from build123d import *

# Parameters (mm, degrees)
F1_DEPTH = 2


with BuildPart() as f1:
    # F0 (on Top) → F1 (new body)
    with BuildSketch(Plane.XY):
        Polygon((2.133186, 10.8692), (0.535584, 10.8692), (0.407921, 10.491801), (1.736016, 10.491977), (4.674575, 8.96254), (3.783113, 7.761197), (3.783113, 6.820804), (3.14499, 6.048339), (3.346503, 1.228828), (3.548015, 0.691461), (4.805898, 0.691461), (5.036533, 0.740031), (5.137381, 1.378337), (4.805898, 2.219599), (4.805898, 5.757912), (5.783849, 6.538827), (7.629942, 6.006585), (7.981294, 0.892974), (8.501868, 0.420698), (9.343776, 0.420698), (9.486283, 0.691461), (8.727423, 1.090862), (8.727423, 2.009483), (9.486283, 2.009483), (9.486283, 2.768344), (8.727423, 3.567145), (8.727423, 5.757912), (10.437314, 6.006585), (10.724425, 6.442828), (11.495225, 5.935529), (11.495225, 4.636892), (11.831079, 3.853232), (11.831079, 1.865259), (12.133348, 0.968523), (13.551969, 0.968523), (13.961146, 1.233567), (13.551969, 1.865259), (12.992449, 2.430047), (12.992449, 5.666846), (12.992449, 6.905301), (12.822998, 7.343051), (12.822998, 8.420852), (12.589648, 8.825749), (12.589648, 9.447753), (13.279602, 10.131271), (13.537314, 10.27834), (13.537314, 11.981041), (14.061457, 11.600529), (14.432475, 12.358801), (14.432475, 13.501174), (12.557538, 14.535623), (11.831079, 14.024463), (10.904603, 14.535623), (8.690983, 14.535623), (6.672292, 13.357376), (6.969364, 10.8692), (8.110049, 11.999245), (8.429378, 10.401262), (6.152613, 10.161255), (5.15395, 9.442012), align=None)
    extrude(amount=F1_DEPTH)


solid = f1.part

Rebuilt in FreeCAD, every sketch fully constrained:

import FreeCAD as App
import Part
import Sketcher

V = App.Vector
Q = App.Units.Quantity


def add_polygon(sketch, points):
    """Adds a closed chain of lines whose ends are joined by coincident constraints."""
    first, n = sketch.GeometryCount, len(points)
    for a, b in zip(points, points[1:] + points[:1]):
        sketch.addGeometry(Part.LineSegment(App.Vector(*a, 0), App.Vector(*b, 0)), False)
    for i in range(n):
        sketch.addConstraint(Sketcher.Constraint("Coincident", first + i, 2, first + (i + 1) % n, 1))

doc = App.newDocument("Part")
body = doc.addObject("PartDesign::Body", "Body")

# Sketch on XY plane
sketch1 = doc.addObject("Sketcher::SketchObject", "Sketch")
body.addObject(sketch1)
sketch1.AttachmentSupport = (doc.XY_Plane, [""])
sketch1.MapMode = "FlatFace"
add_polygon(sketch1, [(2.133186, 10.8692), (0.535584, 10.8692), (0.407921, 10.491801), (1.736016, 10.491977), (4.674575, 8.96254), (3.783113, 7.761197), (3.783113, 6.820804), (3.14499, 6.048339), (3.346503, 1.228828), (3.548015, 0.691461), (4.805898, 0.691461), (5.036533, 0.740031), (5.137381, 1.378337), (4.805898, 2.219599), (4.805898, 5.757912), (5.783849, 6.538827), (7.629942, 6.006585), (7.981294, 0.892974), (8.501868, 0.420698), (9.343776, 0.420698), (9.486283, 0.691461), (8.727423, 1.090862), (8.727423, 2.009483), (9.486283, 2.009483), (9.486283, 2.768344), (8.727423, 3.567145), (8.727423, 5.757912), (10.437314, 6.006585), (10.724425, 6.442828), (11.495225, 5.935529), (11.495225, 4.636892), (11.831079, 3.853232), (11.831079, 1.865259), (12.133348, 0.968523), (13.551969, 0.968523), (13.961146, 1.233567), (13.551969, 1.865259), (12.992449, 2.430047), (12.992449, 6.905301), (12.822998, 7.343051), (12.822998, 8.420852), (12.589648, 8.825749), (12.589648, 9.447753), (13.279602, 10.131271), (13.537314, 10.27834), (13.537314, 11.981041), (14.061457, 11.600529), (14.432475, 12.358801), (14.432475, 13.501174), (12.557538, 14.535623), (11.831079, 14.024463), (10.904603, 14.535623), (8.690983, 14.535623), (6.672292, 13.357376), (6.969364, 10.8692), (8.110049, 11.999245), (8.429378, 10.401262), (6.152613, 10.161255), (5.15395, 9.442012)])  # lines 0-58
sketch1.addConstraint([
    Sketcher.Constraint("Horizontal", 0),
    Sketcher.Constraint("Vertical", 5),
    Sketcher.Constraint("Horizontal", 9),
    Sketcher.Constraint("Vertical", 13),
    Sketcher.Constraint("Horizontal", 18),
    Sketcher.Constraint("Vertical", 21),
    Sketcher.Constraint("Horizontal", 22),
    Sketcher.Constraint("Vertical", 23),
    Sketcher.Constraint("Vertical", 25),
    Sketcher.Constraint("Vertical", 29),
    Sketcher.Constraint("Vertical", 31),
    Sketcher.Constraint("Horizontal", 33),
    Sketcher.Constraint("Vertical", 37),
    Sketcher.Constraint("Vertical", 39),
    Sketcher.Constraint("Vertical", 41),
    Sketcher.Constraint("Vertical", 44),
    Sketcher.Constraint("Vertical", 47),
    Sketcher.Constraint("Horizontal", 51),
    Sketcher.Constraint("Perpendicular", 19, 20),
    Sketcher.Constraint("Perpendicular", 27, 28),
    Sketcher.Constraint("Perpendicular", 34, 35),
    Sketcher.Constraint("Perpendicular", 36, 42),
    Sketcher.Constraint("Parallel", 48, 50),
    Sketcher.Constraint("Parallel", 42, 54),
    Sketcher.Constraint("Horizontal", 9, 2, 19, 2),
    Sketcher.Constraint("Horizontal", 13, 2, 25, 2),
    Sketcher.Constraint("Horizontal", 15, 2, 26, 2),
    Sketcher.Constraint("Horizontal", 31, 2, 35, 2),
    Sketcher.Constraint("Horizontal", 48, 2, 50, 2),
    Sketcher.Constraint("Horizontal", 0, 2, 53, 2),
    Sketcher.Constraint("Vertical", 9, 2, 12, 2),
    Sketcher.Constraint("Vertical", 19, 2, 22, 2),
    Sketcher.Constraint("Vertical", 21, 2, 24, 2),
    Sketcher.Constraint("Vertical", 33, 2, 35, 2),
    Sketcher.Constraint("Vertical", 31, 2, 49, 2),
    Sketcher.Constraint("Equal", 22, 23),
    Sketcher.Constraint("DistanceX", 0, 2, 0, 1, Q("1.597602 mm")),
    Sketcher.Constraint("DistanceY", 39, 1, 39, 2, Q("1.077801 mm")),
    Sketcher.Constraint("DistanceY", 44, 1, 44, 2, Q("1.702701 mm")),
    Sketcher.Constraint("Distance", 45, Q("0.6477 mm")),
    Sketcher.Constraint("DistanceX", 18, 1, 18, 2, Q("0.841908 mm")),
    Sketcher.Constraint("DistanceX", 22, 1, 22, 2, Q("0.75886 mm")),
    Sketcher.Constraint("DistanceX", 33, 1, 33, 2, Q("1.418621 mm")),
    Sketcher.Constraint("DistanceX", 51, 2, 51, 1, Q("2.21362 mm")),
    Sketcher.Constraint("DistanceY", 21, 1, 21, 2, Q("0.918621 mm")),
    Sketcher.Constraint("DistanceY", -1, 1, 0, 2, Q("10.8692 mm")),
    Sketcher.Constraint("DistanceY", -1, 1, 1, 2, Q("10.491801 mm")),
    Sketcher.Constraint("DistanceY", -1, 1, 12, 2, Q("2.219599 mm")),
    Sketcher.Constraint("DistanceY", -1, 1, 37, 2, Q("6.905301 mm")),
    Sketcher.Constraint("DistanceY", -1, 1, 46, 2, Q("12.358801 mm")),
    Sketcher.Constraint("DistanceY", 6, 2, 3, 2, Q("2.914201 mm")),
    Sketcher.Constraint("DistanceX", 8, 2, 5, 2, Q("0.235098 mm")),
    Sketcher.Constraint("DistanceY", 17, 2, 12, 2, Q("1.798901 mm")),
    Sketcher.Constraint("DistanceX", 11, 2, 19, 2, Q("4.348902 mm")),
    Sketcher.Constraint("DistanceY", 19, 2, 20, 2, Q("0.399401 mm")),
    Sketcher.Constraint("DistanceY", 23, 2, 24, 2, Q("0.798801 mm")),
    Sketcher.Constraint("DistanceX", 27, 2, 28, 2, Q("0.7708 mm")),
    Sketcher.Constraint("DistanceY", 28, 2, 27, 2, Q("0.507299 mm")),
    Sketcher.Constraint("DistanceX", 25, 2, 28, 2, Q("2.767802 mm")),
    Sketcher.Constraint("DistanceY", 19, 2, 31, 2, Q("1.173798 mm")),
    Sketcher.Constraint("DistanceX", 32, 2, 36, 2, Q("0.859101 mm")),
    Sketcher.Constraint("DistanceY", 38, 2, 40, 2, Q("1.482698 mm")),
    Sketcher.Constraint("DistanceX", 40, 2, 37, 2, Q("0.402801 mm")),
    Sketcher.Constraint("DistanceY", 39, 2, 41, 2, Q("1.026901 mm")),
    Sketcher.Constraint("DistanceY", 2, 2, 52, 2, Q("2.865399 mm")),
    Sketcher.Constraint("Distance", 3, Q("3.312749 mm")),
    Sketcher.Constraint("Distance", 4, Q("1.495971 mm")),
    Sketcher.Constraint("Distance", 6, Q("1.00195 mm")),
    Sketcher.Constraint("Distance", 7, Q("4.823722 mm")),
    Sketcher.Constraint("Distance", 17, Q("0.702881 mm")),
    Sketcher.Constraint("Distance", 26, Q("1.727879 mm")),
    Sketcher.Constraint("Distance", 32, Q("0.94631 mm")),
    Sketcher.Constraint("Distance", 34, Q("0.487518 mm")),
    Sketcher.Constraint("Distance", 48, Q("2.141372 mm")),
    Sketcher.Constraint("Distance", 50, Q("1.058132 mm")),
    Sketcher.Constraint("Distance", 56, Q("2.28938 mm")),
    Sketcher.Constraint("Distance", 58, Q("3.34094 mm")),
    Sketcher.Constraint("DistanceX", 9, 1, 9, 2, Q("1.257883 mm")),
    Sketcher.Constraint("DistanceY", 5, 2, 5, 1, Q("0.940393 mm")),
    Sketcher.Constraint("DistanceY", 13, 1, 13, 2, Q("3.538313 mm")),
    Sketcher.Constraint("DistanceY", 25, 1, 25, 2, Q("2.190767 mm")),
    Sketcher.Constraint("DistanceY", 29, 2, 29, 1, Q("1.298637 mm")),
    Sketcher.Constraint("DistanceY", 31, 2, 31, 1, Q("1.987973 mm")),
    Sketcher.Constraint("DistanceY", 37, 1, 37, 2, Q("4.475254 mm")),
    Sketcher.Constraint("DistanceY", 47, 1, 47, 2, Q("1.142373 mm")),
    Sketcher.Constraint("DistanceX", -1, 1, 1, 2, Q("0.407921 mm")),
    Sketcher.Constraint("DistanceY", -1, 1, 3, 2, Q("8.96254 mm")),
    Sketcher.Constraint("DistanceX", -1, 1, 6, 2, Q("3.14499 mm")),
    Sketcher.Constraint("DistanceY", -1, 1, 10, 2, Q("0.740031 mm")),
    Sketcher.Constraint("DistanceX", -1, 1, 11, 2, Q("5.137381 mm")),
    Sketcher.Constraint("DistanceX", -1, 1, 14, 2, Q("5.783849 mm")),
    Sketcher.Constraint("DistanceX", -1, 1, 15, 2, Q("7.629942 mm")),
    Sketcher.Constraint("DistanceY", -1, 1, 27, 2, Q("6.442828 mm")),
    Sketcher.Constraint("DistanceX", -1, 1, 30, 2, Q("11.831079 mm")),
    Sketcher.Constraint("DistanceX", -1, 1, 33, 2, Q("13.551969 mm")),
    Sketcher.Constraint("DistanceY", -1, 1, 38, 2, Q("7.343051 mm")),
    Sketcher.Constraint("DistanceY", -1, 1, 42, 2, Q("10.131271 mm")),
    Sketcher.Constraint("DistanceY", -1, 1, 43, 2, Q("10.27834 mm")),
    Sketcher.Constraint("DistanceY", -1, 1, 45, 2, Q("11.600529 mm")),
    Sketcher.Constraint("DistanceX", -1, 1, 52, 2, Q("6.672292 mm")),
    Sketcher.Constraint("DistanceX", -1, 1, 54, 2, Q("8.110049 mm")),
    Sketcher.Constraint("DistanceY", -1, 1, 55, 2, Q("10.401262 mm")),
    Sketcher.Constraint("DistanceX", -1, 1, 57, 2, Q("5.15395 mm")),
    Sketcher.Constraint("DistanceX", 2, 2, 3, 2, Q("2.938559 mm")),
    Sketcher.Constraint("DistanceX", 0, 2, 3, 2, Q("4.138991 mm")),
    Sketcher.Constraint("DistanceX", 4, 2, 3, 2, Q("0.891462 mm")),
    Sketcher.Constraint("DistanceY", 7, 2, 6, 2, Q("4.819511 mm")),
    Sketcher.Constraint("DistanceX", 8, 2, 10, 2, Q("1.488518 mm")),
    Sketcher.Constraint("DistanceY", 7, 2, 11, 2, Q("0.149509 mm")),
    Sketcher.Constraint("DistanceY", 14, 2, 4, 2, Q("1.22237 mm")),
    Sketcher.Constraint("DistanceX", 10, 2, 16, 2, Q("2.944761 mm")),
    Sketcher.Constraint("DistanceX", 38, 2, 37, 2, Q("0.169451 mm")),
    Sketcher.Constraint("DistanceX", 42, 2, 43, 2, Q("0.257712 mm")),
    Sketcher.Constraint("DistanceX", 44, 2, 46, 2, Q("0.895161 mm")),
    Sketcher.Constraint("DistanceY", 47, 2, 48, 2, Q("1.034449 mm")),
    Sketcher.Constraint("DistanceX", 3, 2, 53, 2, Q("2.294789 mm")),
    Sketcher.Constraint("DistanceX", 54, 2, 55, 2, Q("0.319329 mm")),
    Sketcher.Constraint("DistanceX", 56, 2, 53, 2, Q("0.816751 mm")),
])
pad1 = doc.addObject("PartDesign::Pad", "Pad")
body.addObject(pad1)
pad1.Profile = sketch1
pad1.Length = 2

doc.recompute()
